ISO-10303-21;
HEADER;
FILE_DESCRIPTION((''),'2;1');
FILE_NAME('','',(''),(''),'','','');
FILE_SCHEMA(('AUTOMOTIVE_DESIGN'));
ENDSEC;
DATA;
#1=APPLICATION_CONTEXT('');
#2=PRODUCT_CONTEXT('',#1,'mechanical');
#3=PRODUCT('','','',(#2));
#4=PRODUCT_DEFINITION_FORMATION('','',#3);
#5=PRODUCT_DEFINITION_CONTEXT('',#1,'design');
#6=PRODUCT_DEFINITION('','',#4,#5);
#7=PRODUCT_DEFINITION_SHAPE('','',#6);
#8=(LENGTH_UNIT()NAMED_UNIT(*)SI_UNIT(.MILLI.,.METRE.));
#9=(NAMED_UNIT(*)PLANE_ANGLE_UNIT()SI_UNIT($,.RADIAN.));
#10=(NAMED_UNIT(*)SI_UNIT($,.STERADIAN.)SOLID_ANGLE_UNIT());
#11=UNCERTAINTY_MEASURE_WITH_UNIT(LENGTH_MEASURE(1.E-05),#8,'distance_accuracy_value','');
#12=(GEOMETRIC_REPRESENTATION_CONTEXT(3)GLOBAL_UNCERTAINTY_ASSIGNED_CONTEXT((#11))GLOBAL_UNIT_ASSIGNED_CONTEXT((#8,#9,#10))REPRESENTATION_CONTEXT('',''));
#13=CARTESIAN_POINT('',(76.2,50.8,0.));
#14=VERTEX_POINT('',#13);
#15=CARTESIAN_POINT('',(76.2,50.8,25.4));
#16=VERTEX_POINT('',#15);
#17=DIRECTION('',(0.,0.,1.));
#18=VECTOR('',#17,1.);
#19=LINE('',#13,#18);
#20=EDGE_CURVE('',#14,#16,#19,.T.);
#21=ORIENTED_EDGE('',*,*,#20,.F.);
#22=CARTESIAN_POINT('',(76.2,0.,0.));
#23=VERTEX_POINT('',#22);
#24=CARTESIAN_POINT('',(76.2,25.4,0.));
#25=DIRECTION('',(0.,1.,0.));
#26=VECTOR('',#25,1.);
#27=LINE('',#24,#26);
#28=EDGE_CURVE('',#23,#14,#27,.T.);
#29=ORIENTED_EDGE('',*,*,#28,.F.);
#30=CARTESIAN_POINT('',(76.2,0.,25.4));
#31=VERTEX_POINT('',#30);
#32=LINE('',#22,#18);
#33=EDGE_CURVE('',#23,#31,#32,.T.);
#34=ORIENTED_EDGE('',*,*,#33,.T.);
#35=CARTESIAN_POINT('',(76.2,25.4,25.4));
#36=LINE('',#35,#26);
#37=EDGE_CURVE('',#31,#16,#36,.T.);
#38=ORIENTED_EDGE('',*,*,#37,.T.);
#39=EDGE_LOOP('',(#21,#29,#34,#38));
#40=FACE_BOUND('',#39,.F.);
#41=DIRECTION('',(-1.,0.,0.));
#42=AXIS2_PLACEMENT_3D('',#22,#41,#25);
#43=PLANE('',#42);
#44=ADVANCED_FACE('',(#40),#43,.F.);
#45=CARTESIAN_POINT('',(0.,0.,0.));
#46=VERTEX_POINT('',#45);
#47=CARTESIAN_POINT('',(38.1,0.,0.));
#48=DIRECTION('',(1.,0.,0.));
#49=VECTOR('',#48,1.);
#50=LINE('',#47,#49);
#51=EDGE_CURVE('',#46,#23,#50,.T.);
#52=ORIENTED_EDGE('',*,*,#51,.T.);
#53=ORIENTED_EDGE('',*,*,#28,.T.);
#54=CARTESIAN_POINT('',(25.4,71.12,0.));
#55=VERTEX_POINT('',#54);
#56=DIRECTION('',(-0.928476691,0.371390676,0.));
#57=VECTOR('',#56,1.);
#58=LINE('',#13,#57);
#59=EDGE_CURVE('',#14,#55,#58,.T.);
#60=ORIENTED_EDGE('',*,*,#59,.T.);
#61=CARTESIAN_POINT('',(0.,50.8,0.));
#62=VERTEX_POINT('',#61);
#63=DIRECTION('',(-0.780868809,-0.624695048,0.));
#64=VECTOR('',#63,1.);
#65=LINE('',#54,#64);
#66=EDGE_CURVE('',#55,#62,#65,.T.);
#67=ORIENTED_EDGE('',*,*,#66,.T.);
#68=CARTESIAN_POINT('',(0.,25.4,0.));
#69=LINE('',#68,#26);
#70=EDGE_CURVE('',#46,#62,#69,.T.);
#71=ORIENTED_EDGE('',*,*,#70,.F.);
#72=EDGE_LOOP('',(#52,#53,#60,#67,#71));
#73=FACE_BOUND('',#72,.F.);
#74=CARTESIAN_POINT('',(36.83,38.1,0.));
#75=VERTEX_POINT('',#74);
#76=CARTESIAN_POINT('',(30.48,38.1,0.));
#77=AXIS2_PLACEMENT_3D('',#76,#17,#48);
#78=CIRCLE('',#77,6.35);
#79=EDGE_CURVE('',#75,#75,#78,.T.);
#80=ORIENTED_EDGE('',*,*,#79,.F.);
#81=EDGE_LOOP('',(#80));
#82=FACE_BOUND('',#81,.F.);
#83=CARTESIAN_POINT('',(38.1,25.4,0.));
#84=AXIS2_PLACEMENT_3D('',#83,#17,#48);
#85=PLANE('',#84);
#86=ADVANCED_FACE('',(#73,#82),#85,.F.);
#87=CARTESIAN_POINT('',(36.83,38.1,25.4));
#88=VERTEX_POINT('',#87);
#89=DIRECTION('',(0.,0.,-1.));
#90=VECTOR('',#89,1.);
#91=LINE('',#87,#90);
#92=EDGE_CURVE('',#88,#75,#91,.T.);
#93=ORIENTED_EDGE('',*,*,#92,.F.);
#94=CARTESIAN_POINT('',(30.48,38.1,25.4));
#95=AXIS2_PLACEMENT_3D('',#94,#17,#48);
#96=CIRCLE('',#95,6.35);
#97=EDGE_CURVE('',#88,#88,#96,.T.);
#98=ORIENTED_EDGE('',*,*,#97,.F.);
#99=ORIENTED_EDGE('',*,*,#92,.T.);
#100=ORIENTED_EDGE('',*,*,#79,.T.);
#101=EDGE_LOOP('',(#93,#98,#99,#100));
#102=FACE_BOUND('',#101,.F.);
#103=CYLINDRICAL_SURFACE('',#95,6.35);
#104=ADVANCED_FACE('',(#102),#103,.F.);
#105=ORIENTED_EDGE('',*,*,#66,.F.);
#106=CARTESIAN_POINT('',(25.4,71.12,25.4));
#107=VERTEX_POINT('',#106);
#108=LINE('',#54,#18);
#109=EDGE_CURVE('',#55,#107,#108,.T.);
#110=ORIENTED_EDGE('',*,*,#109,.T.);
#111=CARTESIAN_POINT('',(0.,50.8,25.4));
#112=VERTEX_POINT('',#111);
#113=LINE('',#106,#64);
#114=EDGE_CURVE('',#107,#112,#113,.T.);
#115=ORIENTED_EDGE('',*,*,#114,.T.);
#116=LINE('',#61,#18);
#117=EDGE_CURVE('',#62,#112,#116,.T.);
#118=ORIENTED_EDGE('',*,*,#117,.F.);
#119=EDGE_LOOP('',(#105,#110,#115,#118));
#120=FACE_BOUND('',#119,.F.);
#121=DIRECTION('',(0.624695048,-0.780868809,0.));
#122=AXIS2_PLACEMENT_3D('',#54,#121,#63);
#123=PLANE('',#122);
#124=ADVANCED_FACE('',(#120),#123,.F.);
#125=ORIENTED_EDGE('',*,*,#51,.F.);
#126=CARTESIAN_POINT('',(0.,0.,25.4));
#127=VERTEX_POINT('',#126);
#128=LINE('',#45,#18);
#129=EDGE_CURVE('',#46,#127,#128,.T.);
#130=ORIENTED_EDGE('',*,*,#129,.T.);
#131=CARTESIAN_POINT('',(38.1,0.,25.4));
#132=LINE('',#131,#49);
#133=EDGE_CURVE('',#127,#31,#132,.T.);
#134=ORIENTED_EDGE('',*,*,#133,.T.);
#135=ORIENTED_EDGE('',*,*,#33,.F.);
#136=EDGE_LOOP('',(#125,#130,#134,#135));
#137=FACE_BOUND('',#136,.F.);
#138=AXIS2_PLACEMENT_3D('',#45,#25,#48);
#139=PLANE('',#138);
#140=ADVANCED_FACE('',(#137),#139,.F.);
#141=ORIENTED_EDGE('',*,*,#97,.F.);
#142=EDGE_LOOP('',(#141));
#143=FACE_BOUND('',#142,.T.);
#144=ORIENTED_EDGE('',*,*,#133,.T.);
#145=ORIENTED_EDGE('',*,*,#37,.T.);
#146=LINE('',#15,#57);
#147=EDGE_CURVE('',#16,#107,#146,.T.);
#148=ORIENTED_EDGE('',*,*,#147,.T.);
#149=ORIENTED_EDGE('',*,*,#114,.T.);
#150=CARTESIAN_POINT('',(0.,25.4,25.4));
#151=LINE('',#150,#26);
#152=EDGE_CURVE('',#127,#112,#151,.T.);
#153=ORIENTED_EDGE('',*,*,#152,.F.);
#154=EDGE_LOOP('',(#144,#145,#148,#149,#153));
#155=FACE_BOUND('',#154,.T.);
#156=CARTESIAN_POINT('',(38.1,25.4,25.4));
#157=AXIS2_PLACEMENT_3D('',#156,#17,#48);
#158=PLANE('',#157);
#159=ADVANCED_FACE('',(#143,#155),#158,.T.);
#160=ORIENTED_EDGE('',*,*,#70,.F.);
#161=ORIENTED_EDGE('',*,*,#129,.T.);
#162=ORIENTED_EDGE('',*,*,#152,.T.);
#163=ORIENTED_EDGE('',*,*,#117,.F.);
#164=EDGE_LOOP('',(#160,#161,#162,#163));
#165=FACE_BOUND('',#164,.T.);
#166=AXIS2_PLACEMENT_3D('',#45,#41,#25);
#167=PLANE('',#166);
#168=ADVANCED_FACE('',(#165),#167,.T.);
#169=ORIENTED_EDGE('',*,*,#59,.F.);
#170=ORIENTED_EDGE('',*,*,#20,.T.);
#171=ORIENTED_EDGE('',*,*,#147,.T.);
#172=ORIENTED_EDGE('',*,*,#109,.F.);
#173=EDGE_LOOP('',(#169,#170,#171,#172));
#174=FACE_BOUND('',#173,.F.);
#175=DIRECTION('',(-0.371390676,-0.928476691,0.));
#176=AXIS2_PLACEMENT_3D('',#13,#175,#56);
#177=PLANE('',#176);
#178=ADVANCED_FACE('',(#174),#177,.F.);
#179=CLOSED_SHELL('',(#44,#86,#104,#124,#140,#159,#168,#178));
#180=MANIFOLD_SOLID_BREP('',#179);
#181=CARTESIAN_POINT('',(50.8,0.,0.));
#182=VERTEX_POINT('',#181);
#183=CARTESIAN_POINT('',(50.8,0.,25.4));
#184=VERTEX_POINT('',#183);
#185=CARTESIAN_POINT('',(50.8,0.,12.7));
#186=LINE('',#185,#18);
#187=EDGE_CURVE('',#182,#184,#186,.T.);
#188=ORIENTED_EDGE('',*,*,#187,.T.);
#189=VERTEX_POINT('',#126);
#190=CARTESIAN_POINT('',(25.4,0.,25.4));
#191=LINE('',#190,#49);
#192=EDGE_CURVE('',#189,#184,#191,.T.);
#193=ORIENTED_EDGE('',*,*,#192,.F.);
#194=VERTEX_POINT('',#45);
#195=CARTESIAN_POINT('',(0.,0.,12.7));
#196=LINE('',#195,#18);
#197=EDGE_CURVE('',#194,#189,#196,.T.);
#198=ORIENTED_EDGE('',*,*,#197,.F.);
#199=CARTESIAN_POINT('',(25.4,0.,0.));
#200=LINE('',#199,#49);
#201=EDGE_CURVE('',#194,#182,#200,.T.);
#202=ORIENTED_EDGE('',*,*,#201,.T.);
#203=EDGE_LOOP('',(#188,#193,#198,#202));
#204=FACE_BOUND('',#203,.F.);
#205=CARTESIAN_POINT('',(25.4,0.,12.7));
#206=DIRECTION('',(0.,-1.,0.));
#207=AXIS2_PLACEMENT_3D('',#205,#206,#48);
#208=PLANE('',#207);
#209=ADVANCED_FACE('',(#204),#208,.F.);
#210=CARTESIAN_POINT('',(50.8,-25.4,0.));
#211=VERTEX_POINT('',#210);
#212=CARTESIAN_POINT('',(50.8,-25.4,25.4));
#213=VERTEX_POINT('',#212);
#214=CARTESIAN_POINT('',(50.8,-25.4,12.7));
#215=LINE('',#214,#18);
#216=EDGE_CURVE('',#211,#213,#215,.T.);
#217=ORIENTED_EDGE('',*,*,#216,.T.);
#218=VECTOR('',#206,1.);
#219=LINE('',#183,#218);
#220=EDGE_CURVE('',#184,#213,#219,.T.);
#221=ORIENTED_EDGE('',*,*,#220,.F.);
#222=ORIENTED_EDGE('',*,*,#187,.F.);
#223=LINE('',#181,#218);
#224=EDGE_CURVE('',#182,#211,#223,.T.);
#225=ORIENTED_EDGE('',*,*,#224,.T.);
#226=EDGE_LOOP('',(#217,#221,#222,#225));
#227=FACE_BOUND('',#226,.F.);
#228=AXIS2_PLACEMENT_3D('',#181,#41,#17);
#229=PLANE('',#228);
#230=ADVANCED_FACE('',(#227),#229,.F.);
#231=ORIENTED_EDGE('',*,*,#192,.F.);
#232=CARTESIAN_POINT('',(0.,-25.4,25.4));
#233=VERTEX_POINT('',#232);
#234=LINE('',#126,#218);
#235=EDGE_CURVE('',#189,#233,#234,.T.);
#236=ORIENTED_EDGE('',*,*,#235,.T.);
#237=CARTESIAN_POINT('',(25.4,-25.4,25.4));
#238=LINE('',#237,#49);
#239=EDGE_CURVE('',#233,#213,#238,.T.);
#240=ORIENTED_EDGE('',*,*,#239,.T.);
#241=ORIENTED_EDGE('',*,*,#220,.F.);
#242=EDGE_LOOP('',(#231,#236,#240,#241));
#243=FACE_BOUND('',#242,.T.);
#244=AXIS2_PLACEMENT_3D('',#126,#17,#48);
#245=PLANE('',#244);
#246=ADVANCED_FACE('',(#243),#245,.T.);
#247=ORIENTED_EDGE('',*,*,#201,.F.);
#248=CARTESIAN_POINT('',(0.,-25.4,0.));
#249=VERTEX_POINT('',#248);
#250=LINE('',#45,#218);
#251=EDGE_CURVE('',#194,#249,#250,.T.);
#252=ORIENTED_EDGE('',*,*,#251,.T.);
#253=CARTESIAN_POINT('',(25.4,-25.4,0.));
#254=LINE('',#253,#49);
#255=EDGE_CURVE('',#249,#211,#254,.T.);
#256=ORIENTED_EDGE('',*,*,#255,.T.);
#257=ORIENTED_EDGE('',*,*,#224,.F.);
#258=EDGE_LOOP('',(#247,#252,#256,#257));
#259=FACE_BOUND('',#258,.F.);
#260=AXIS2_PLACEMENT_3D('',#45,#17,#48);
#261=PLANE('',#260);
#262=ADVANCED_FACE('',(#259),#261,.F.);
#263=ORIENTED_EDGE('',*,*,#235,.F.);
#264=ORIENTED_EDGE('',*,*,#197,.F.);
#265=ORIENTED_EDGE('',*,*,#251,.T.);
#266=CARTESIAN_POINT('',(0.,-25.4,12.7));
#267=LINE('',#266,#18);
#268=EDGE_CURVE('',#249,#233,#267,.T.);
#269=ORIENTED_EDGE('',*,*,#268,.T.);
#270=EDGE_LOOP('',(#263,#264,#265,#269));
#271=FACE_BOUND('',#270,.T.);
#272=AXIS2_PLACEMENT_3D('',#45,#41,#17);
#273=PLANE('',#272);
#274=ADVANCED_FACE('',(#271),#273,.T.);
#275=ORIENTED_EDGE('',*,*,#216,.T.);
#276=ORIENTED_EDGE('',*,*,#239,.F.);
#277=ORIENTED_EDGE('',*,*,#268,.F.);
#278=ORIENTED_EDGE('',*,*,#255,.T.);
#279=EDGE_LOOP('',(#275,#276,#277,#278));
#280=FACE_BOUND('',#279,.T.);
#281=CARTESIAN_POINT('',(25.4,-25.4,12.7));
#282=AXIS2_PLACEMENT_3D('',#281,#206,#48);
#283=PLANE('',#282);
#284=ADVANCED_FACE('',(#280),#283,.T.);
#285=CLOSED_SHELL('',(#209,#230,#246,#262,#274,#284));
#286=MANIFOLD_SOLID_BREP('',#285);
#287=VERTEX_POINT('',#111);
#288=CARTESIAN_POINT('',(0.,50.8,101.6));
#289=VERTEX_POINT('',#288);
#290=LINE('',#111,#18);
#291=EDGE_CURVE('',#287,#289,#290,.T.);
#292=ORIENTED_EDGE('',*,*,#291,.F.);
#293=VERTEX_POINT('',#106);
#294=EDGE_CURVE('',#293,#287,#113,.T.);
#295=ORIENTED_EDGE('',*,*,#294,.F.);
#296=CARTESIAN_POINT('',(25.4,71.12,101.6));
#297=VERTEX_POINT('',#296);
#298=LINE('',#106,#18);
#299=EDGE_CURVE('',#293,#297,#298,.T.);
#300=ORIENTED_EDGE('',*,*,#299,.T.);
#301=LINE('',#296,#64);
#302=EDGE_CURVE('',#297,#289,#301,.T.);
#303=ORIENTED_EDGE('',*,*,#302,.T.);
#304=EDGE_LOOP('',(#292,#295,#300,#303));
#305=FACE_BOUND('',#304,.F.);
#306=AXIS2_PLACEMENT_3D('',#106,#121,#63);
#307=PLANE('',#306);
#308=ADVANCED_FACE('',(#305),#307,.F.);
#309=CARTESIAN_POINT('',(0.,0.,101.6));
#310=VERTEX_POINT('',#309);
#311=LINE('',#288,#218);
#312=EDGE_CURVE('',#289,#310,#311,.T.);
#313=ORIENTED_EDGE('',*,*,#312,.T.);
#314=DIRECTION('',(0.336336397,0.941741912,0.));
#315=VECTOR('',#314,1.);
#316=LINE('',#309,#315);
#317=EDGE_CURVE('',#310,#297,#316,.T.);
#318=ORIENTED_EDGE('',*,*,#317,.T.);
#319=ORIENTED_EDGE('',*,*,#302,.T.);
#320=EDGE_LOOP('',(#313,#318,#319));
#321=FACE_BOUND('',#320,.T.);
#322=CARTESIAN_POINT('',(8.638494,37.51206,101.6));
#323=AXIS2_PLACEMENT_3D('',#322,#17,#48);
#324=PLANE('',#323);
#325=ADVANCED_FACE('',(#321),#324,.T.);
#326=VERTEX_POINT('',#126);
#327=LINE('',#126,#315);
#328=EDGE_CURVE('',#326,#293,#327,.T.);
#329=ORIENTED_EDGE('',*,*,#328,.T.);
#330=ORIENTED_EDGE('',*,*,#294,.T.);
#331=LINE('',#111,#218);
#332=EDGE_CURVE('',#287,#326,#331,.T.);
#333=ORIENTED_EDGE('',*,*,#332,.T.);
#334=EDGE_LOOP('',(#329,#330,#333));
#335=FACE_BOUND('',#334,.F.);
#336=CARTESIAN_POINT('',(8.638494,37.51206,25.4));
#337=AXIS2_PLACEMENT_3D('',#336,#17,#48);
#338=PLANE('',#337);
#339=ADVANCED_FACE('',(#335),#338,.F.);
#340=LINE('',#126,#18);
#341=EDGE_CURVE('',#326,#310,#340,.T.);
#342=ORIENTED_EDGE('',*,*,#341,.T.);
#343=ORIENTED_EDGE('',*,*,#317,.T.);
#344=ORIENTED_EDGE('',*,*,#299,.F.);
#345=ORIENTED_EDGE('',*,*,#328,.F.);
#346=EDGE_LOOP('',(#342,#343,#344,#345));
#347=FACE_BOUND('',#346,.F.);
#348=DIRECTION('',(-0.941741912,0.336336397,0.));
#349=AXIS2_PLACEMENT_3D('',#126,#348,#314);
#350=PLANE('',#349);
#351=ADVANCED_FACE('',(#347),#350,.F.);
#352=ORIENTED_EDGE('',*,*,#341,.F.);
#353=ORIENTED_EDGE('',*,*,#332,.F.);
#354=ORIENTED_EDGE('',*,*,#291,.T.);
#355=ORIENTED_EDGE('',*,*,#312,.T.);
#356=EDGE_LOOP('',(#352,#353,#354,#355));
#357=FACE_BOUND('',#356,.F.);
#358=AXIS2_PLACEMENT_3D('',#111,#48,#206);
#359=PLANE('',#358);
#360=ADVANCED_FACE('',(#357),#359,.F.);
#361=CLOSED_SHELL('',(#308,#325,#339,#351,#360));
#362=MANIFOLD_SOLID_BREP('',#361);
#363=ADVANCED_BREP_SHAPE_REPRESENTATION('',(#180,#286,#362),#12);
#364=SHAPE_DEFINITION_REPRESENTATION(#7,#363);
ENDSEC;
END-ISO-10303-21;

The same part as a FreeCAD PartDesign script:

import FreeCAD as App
import Part
import Sketcher
from FreeCAD import Vector
Q = App.Units.Quantity

doc = App.newDocument("Part")
body = doc.addObject("PartDesign::Body", "Body")

sketch1 = body.newObject("Sketcher::SketchObject", "Sketch")
sketch1.AttachmentSupport = (doc.getObject("XY_Plane"), [""])
sketch1.MapMode = "FlatFace"
sketch1.addGeometry(Part.LineSegment(Vector(0, 50.8, 0), Vector(0, 0, 0)), False)
sketch1.addGeometry(Part.LineSegment(Vector(0, 0, 0), Vector(76.2, 0, 0)), False)
sketch1.addGeometry(Part.LineSegment(Vector(76.2, 0, 0), Vector(76.2, 50.8, 0)), False)
sketch1.addGeometry(Part.LineSegment(Vector(76.2, 50.8, 0), Vector(25.4, 71.12, 0)), False)
sketch1.addGeometry(Part.LineSegment(Vector(25.4, 71.12, 0), Vector(0, 50.8, 0)), False)
sketch1.addConstraint(Sketcher.Constraint("Coincident", 0, 2, 1, 1))
sketch1.addConstraint(Sketcher.Constraint("Coincident", 1, 2, 2, 1))
sketch1.addConstraint(Sketcher.Constraint("Coincident", 2, 2, 3, 1))
sketch1.addConstraint(Sketcher.Constraint("Coincident", 3, 2, 4, 1))
sketch1.addConstraint(Sketcher.Constraint("Coincident", 4, 2, 0, 1))
sketch1.addConstraint(Sketcher.Constraint("Vertical", 0))
sketch1.addConstraint(Sketcher.Constraint("Horizontal", 1))
sketch1.addConstraint(Sketcher.Constraint("Vertical", 2))
sketch1.addConstraint(Sketcher.Constraint("Coincident", 0, 2, -1, 1))
sketch1.addConstraint(Sketcher.Constraint("Horizontal", 2, 2, 4, 2))
sketch1.addConstraint(Sketcher.Constraint("DistanceX", 1, 1, 1, 2, Q("3 in")))
sketch1.addConstraint(Sketcher.Constraint("DistanceY", 0, 2, 0, 1, Q("2 in")))
sketch1.addConstraint(Sketcher.Constraint("DistanceX", -1, 1, 3, 2, Q("1 in")))
sketch1.addConstraint(Sketcher.Constraint("DistanceY", -1, 1, 3, 2, Q("2.8 in")))
pad1 = body.newObject("PartDesign::Pad", "Pad")
pad1.Profile = sketch1
pad1.Length = Q("1 in")

sketch2 = body.newObject("Sketcher::SketchObject", "Sketch001")
sketch2.AttachmentSupport = (doc.getObject("XY_Plane"), [""])
sketch2.MapMode = "FlatFace"
sketch2.AttachmentOffset = App.Placement(Vector(0, 0, 1 * 25.4), App.Rotation())
sketch2.addGeometry(Part.Circle(Vector(30.48, 38.1, 0), Vector(0, 0, 1), 6.35), False)
sketch2.addConstraint(Sketcher.Constraint("Diameter", 0, Q("0.5 in")))
sketch2.addConstraint(Sketcher.Constraint("DistanceX", -1, 1, 0, 3, Q("1.2 in")))
sketch2.addConstraint(Sketcher.Constraint("DistanceY", -1, 1, 0, 3, Q("1.5 in")))
pocket1 = body.newObject("PartDesign::Pocket", "Pocket")
pocket1.Profile = sketch2
pocket1.Type = "ThroughAll"
body2 = doc.addObject("PartDesign::Body", "Body001")

sketch3 = body2.newObject("Sketcher::SketchObject", "Sketch002")
sketch3.AttachmentSupport = (doc.getObject("XZ_Plane001"), [""])
sketch3.MapMode = "FlatFace"
sketch3.addGeometry(Part.LineSegment(Vector(0, 25.4, 0), Vector(0, 0, 0)), False)
sketch3.addGeometry(Part.LineSegment(Vector(0, 0, 0), Vector(50.8, 0, 0)), False)
sketch3.addGeometry(Part.LineSegment(Vector(50.8, 0, 0), Vector(50.8, 25.4, 0)), False)
sketch3.addGeometry(Part.LineSegment(Vector(50.8, 25.4, 0), Vector(0, 25.4, 0)), False)
sketch3.addConstraint(Sketcher.Constraint("Coincident", 0, 2, 1, 1))
sketch3.addConstraint(Sketcher.Constraint("Coincident", 1, 2, 2, 1))
sketch3.addConstraint(Sketcher.Constraint("Coincident", 2, 2, 3, 1))
sketch3.addConstraint(Sketcher.Constraint("Coincident", 3, 2, 0, 1))
sketch3.addConstraint(Sketcher.Constraint("Vertical", 0))
sketch3.addConstraint(Sketcher.Constraint("Horizontal", 1))
sketch3.addConstraint(Sketcher.Constraint("Vertical", 2))
sketch3.addConstraint(Sketcher.Constraint("Horizontal", 3))
sketch3.addConstraint(Sketcher.Constraint("Coincident", 0, 2, -1, 1))
sketch3.addConstraint(Sketcher.Constraint("DistanceX", 1, 1, 1, 2, Q("2 in")))
sketch3.addConstraint(Sketcher.Constraint("DistanceY", 0, 2, 0, 1, Q("1 in")))
pad2 = body2.newObject("PartDesign::Pad", "Pad001")
pad2.Profile = sketch3
pad2.Length = Q("1 in")
body3 = doc.addObject("PartDesign::Body", "Body002")

sketch4 = body3.newObject("Sketcher::SketchObject", "Sketch003")
sketch4.AttachmentSupport = (doc.getObject("XY_Plane002"), [""])
sketch4.MapMode = "FlatFace"
sketch4.AttachmentOffset = App.Placement(Vector(0, 0, 1 * 25.4), App.Rotation())
sketch4.addGeometry(Part.LineSegment(Vector(0, 50.8, 0), Vector(0, 0, 0)), False)
sketch4.addGeometry(Part.LineSegment(Vector(0, 0, 0), Vector(25.4, 71.12, 0)), False)
sketch4.addGeometry(Part.LineSegment(Vector(25.4, 71.12, 0), Vector(0, 50.8, 0)), False)
sketch4.addConstraint(Sketcher.Constraint("Coincident", 0, 2, 1, 1))
sketch4.addConstraint(Sketcher.Constraint("Coincident", 1, 2, 2, 1))
sketch4.addConstraint(Sketcher.Constraint("Coincident", 2, 2, 0, 1))
sketch4.addConstraint(Sketcher.Constraint("Vertical", 0))
sketch4.addConstraint(Sketcher.Constraint("Coincident", 0, 2, -1, 1))
sketch4.addConstraint(Sketcher.Constraint("DistanceY", 0, 2, 0, 1, Q("2 in")))
sketch4.addConstraint(Sketcher.Constraint("DistanceX", -1, 1, 1, 2, Q("1 in")))
sketch4.addConstraint(Sketcher.Constraint("DistanceY", -1, 1, 1, 2, Q("2.8 in")))
pad3 = body3.newObject("PartDesign::Pad", "Pad002")
pad3.Profile = sketch4
pad3.Length = Q("3 in")

doc.recompute()
